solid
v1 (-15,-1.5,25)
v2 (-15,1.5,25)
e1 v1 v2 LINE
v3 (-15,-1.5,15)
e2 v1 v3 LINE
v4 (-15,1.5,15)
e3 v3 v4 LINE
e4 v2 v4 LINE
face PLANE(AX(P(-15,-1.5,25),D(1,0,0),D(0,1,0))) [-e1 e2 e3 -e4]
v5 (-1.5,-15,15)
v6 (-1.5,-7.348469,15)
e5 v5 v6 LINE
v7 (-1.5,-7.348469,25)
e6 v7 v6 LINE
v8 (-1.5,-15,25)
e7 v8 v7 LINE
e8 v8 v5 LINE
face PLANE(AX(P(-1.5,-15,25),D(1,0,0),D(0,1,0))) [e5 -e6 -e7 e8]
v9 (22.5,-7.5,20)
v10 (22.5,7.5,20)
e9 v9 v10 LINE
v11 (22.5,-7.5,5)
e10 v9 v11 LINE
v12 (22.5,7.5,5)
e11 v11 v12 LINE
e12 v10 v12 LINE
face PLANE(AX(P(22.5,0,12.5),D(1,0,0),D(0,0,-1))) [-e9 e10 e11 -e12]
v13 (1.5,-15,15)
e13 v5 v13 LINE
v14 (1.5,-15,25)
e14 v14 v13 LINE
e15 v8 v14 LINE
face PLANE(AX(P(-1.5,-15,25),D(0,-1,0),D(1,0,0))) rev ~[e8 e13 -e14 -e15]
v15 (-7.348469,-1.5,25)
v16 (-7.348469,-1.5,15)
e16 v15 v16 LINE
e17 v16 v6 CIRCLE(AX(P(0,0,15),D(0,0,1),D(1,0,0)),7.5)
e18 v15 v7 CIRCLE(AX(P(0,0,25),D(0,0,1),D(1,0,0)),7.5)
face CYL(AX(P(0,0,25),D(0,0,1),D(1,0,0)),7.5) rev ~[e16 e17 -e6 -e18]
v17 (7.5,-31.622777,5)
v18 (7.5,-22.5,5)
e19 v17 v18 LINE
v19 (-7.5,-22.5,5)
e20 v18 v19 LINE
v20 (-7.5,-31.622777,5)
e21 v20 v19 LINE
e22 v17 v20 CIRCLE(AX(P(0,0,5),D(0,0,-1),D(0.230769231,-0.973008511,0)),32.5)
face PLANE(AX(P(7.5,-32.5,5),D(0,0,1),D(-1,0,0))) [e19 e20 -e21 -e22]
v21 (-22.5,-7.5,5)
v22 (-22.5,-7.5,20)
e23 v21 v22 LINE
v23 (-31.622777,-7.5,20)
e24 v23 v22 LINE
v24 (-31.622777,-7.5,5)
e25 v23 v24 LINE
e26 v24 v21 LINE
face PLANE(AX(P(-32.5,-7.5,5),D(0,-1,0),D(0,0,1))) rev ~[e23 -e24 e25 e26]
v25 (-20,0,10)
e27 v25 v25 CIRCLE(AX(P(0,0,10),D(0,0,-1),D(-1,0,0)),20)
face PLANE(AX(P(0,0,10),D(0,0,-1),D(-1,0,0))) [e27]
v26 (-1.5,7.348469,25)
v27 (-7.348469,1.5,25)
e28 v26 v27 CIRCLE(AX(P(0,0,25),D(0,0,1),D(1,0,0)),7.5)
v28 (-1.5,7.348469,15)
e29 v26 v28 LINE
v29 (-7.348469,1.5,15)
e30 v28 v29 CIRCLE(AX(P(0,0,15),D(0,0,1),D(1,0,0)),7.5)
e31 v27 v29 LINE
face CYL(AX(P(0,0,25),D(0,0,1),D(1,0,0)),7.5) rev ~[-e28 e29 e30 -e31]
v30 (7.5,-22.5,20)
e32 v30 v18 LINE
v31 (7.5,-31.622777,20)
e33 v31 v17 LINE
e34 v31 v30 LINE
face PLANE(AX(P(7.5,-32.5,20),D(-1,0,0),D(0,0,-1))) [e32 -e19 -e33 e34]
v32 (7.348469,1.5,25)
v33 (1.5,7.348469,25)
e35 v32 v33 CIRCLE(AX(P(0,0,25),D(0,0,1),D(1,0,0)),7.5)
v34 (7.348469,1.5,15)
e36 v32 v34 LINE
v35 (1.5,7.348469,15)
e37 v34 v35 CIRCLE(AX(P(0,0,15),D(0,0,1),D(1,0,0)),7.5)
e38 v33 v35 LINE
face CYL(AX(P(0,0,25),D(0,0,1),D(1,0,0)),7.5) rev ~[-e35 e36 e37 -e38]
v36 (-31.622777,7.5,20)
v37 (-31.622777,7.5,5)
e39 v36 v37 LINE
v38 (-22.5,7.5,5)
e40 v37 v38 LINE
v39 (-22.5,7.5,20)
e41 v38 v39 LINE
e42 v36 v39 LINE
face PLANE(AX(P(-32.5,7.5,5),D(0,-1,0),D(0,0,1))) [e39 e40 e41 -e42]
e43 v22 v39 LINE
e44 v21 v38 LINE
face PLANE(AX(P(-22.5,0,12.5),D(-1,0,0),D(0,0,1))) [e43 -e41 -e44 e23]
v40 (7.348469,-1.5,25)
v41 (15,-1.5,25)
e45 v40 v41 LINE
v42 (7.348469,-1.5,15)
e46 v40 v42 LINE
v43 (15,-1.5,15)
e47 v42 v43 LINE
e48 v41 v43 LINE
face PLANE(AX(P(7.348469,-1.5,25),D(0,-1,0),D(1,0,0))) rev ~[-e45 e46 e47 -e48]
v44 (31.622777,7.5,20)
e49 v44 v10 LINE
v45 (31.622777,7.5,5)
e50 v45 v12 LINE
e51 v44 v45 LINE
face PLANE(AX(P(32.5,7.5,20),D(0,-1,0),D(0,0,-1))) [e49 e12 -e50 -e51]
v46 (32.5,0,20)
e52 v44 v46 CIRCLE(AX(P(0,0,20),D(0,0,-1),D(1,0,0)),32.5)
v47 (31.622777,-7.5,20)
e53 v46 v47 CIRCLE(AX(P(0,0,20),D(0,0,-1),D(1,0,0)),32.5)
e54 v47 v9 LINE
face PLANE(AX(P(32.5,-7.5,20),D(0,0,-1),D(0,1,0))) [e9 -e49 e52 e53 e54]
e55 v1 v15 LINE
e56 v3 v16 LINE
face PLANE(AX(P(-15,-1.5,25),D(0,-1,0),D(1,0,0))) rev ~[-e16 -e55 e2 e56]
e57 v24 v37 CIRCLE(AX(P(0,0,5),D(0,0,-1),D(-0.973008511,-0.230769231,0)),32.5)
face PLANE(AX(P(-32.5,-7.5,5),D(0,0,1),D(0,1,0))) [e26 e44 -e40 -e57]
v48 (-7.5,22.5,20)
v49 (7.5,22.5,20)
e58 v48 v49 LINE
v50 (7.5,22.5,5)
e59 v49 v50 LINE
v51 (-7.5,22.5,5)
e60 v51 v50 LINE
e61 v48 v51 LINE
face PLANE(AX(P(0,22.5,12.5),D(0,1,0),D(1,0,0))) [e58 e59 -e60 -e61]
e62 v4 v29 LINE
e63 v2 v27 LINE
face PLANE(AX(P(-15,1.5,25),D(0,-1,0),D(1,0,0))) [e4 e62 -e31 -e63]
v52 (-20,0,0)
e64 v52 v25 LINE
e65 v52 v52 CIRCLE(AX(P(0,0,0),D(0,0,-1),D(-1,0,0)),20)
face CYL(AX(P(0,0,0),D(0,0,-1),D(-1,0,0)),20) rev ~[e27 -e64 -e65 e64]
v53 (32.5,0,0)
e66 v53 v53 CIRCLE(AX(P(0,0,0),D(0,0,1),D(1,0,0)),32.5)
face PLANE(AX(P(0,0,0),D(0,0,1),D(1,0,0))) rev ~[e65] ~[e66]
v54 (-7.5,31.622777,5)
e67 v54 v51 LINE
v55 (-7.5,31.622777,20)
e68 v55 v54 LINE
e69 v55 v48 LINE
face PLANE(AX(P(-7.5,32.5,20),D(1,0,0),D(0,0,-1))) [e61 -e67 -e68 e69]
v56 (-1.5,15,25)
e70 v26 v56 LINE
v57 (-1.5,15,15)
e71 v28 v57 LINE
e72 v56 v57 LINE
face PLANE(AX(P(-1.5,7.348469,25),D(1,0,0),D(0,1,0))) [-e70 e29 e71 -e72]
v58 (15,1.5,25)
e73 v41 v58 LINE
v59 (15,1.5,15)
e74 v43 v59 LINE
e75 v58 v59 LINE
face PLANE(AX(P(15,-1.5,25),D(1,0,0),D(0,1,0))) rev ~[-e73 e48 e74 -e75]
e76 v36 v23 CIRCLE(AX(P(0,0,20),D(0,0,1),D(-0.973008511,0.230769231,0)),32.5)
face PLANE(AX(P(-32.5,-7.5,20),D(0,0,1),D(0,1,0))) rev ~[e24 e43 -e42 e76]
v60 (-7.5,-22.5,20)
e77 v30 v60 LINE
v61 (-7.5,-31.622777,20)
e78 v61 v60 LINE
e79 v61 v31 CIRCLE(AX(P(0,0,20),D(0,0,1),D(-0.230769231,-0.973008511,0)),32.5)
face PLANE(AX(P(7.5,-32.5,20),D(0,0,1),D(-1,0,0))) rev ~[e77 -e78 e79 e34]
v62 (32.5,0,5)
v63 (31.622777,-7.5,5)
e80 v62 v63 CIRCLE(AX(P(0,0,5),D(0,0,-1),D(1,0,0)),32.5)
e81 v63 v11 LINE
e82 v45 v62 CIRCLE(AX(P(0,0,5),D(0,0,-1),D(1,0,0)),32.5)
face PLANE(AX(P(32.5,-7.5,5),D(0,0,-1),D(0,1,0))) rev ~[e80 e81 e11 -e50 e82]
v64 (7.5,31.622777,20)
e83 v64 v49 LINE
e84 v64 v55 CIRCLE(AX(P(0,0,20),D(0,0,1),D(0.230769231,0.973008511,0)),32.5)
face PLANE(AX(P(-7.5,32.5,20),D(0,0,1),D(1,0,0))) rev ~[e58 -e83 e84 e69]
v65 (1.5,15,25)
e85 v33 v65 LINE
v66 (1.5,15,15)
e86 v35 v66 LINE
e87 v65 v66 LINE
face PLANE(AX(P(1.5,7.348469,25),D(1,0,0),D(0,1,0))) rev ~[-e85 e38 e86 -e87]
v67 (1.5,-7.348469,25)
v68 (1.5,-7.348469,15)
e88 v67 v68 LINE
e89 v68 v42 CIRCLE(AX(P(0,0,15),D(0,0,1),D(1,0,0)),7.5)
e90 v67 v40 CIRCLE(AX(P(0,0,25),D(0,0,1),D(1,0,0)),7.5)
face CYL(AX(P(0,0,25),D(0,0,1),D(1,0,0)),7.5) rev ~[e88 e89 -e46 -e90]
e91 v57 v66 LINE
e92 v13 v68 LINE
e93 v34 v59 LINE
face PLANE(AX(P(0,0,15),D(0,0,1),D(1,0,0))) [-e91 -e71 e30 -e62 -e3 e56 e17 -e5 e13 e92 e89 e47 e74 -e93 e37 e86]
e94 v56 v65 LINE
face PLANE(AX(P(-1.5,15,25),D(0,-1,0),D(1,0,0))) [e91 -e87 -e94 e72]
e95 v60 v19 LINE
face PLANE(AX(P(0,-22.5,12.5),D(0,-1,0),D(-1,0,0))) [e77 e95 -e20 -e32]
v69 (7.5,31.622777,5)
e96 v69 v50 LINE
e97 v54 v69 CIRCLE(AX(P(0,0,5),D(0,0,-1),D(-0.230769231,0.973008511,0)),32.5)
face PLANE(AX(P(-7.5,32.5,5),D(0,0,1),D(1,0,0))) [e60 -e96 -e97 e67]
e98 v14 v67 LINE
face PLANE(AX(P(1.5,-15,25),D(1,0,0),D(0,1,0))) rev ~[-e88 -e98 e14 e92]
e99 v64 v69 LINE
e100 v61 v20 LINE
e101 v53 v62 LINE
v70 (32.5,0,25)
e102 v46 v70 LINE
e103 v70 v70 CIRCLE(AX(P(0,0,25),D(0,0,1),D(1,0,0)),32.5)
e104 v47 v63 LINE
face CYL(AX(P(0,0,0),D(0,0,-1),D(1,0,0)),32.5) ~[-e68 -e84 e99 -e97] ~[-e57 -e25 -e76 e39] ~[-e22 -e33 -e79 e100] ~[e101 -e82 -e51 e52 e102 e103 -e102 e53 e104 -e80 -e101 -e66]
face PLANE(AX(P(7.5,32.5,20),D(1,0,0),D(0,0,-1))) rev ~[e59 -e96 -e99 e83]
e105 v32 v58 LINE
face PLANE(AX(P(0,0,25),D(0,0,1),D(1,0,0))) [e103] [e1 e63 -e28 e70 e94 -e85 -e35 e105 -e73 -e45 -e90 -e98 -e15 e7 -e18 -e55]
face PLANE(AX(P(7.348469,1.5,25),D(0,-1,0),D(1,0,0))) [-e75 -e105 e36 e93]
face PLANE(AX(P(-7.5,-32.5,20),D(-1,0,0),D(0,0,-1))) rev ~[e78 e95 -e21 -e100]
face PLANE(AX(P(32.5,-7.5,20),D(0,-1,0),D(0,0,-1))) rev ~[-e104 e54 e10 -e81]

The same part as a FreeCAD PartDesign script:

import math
import FreeCAD as App
import Part
import Sketcher
Q = App.Units.Quantity

doc = App.newDocument("Part")
body = doc.addObject("PartDesign::Body", "Body")

sketch1 = body.newObject("Sketcher::SketchObject", "Sketch")
sketch1.AttachmentSupport = (doc.getObject("XY_Plane"), [""])
sketch1.MapMode = "FlatFace"
sketch1.addGeometry(Part.Circle(App.Vector(0, 0, 0), App.Vector(0, 0, 1), 32.5), False)
sketch1.addConstraint(Sketcher.Constraint("Coincident", 0, 3, -1, 1))
sketch1.addConstraint(Sketcher.Constraint("Diameter", 0, Q("65 mm")))
pad1 = body.newObject("PartDesign::Pad", "Pad")
pad1.Profile = sketch1
pad1.Length = 25

sketch2 = body.newObject("Sketcher::SketchObject", "Sketch001")
sketch2.AttachmentSupport = (doc.getObject("XY_Plane"), [""])
sketch2.MapMode = "FlatFace"
sketch2.addGeometry(Part.Circle(App.Vector(0, 0, 0), App.Vector(0, 0, 1), 20), False)
sketch2.addConstraint(Sketcher.Constraint("Coincident", 0, 3, -1, 1))
sketch2.addConstraint(Sketcher.Constraint("Diameter", 0, Q("40 mm")))
pocket1 = body.newObject("PartDesign::Pocket", "Pocket")
pocket1.Profile = sketch2
pocket1.Length = 10
pocket1.Reversed = True

sketch3 = body.newObject("Sketcher::SketchObject", "Sketch002")
sketch3.AttachmentSupport = (doc.getObject("XY_Plane"), [""])
sketch3.MapMode = "FlatFace"
sketch3.AttachmentOffset = App.Placement(App.Vector(0, 0, 25), App.Rotation())
sketch3.addGeometry(Part.ArcOfCircle(Part.Circle(App.Vector(0, 0, 0), App.Vector(0, 0, 1), 7.5), math.radians(-78.463041), math.radians(-11.536959)), False)
sketch3.addGeometry(Part.LineSegment(App.Vector(7.348469, -1.5, 0), App.Vector(15, -1.5, 0)), False)
sketch3.addGeometry(Part.LineSegment(App.Vector(15, -1.5, 0), App.Vector(15, 1.5, 0)), False)
sketch3.addGeometry(Part.LineSegment(App.Vector(15, 1.5, 0), App.Vector(7.348469, 1.5, 0)), False)
sketch3.addGeometry(Part.ArcOfCircle(Part.Circle(App.Vector(0, 0, 0), App.Vector(0, 0, 1), 7.5), math.radians(11.536959), math.radians(78.463041)), False)
sketch3.addGeometry(Part.LineSegment(App.Vector(1.5, 7.348469, 0), App.Vector(1.5, 15, 0)), False)
sketch3.addGeometry(Part.LineSegment(App.Vector(1.5, 15, 0), App.Vector(-1.5, 15, 0)), False)
sketch3.addGeometry(Part.LineSegment(App.Vector(-1.5, 15, 0), App.Vector(-1.5, 7.348469, 0)), False)
sketch3.addGeometry(Part.ArcOfCircle(Part.Circle(App.Vector(0, 0, 0), App.Vector(0, 0, 1), 7.5), math.radians(101.536959), math.radians(168.463041)), False)
sketch3.addGeometry(Part.LineSegment(App.Vector(-7.348469, 1.5, 0), App.Vector(-15, 1.5, 0)), False)
sketch3.addGeometry(Part.LineSegment(App.Vector(-15, 1.5, 0), App.Vector(-15, -1.5, 0)), False)
sketch3.addGeometry(Part.LineSegment(App.Vector(-15, -1.5, 0), App.Vector(-7.348469, -1.5, 0)), False)
sketch3.addGeometry(Part.ArcOfCircle(Part.Circle(App.Vector(0, 0, 0), App.Vector(0, 0, 1), 7.5), math.radians(-168.463041), math.radians(-101.536959)), False)
sketch3.addGeometry(Part.LineSegment(App.Vector(-1.5, -7.348469, 0), App.Vector(-1.5, -15, 0)), False)
sketch3.addGeometry(Part.LineSegment(App.Vector(-1.5, -15, 0), App.Vector(1.5, -15, 0)), False)
sketch3.addGeometry(Part.LineSegment(App.Vector(1.5, -15, 0), App.Vector(1.5, -7.348469, 0)), False)
sketch3.addConstraint(Sketcher.Constraint("Coincident", 0, 2, 1, 1))
sketch3.addConstraint(Sketcher.Constraint("Coincident", 1, 2, 2, 1))
sketch3.addConstraint(Sketcher.Constraint("Coincident", 2, 2, 3, 1))
sketch3.addConstraint(Sketcher.Constraint("Coincident", 3, 2, 4, 1))
sketch3.addConstraint(Sketcher.Constraint("Coincident", 4, 2, 5, 1))
sketch3.addConstraint(Sketcher.Constraint("Coincident", 5, 2, 6, 1))
sketch3.addConstraint(Sketcher.Constraint("Coincident", 6, 2, 7, 1))
sketch3.addConstraint(Sketcher.Constraint("Coincident", 7, 2, 8, 1))
sketch3.addConstraint(Sketcher.Constraint("Coincident", 8, 2, 9, 1))
sketch3.addConstraint(Sketcher.Constraint("Coincident", 9, 2, 10, 1))
sketch3.addConstraint(Sketcher.Constraint("Coincident", 10, 2, 11, 1))
sketch3.addConstraint(Sketcher.Constraint("Coincident", 11, 2, 12, 1))
sketch3.addConstraint(Sketcher.Constraint("Coincident", 12, 2, 13, 1))
sketch3.addConstraint(Sketcher.Constraint("Coincident", 13, 2, 14, 1))
sketch3.addConstraint(Sketcher.Constraint("Coincident", 14, 2, 15, 1))
sketch3.addConstraint(Sketcher.Constraint("Coincident", 15, 2, 0, 1))
sketch3.addConstraint(Sketcher.Constraint("Horizontal", 1))
sketch3.addConstraint(Sketcher.Constraint("Vertical", 2))
sketch3.addConstraint(Sketcher.Constraint("Horizontal", 3))
sketch3.addConstraint(Sketcher.Constraint("Vertical", 5))
sketch3.addConstraint(Sketcher.Constraint("Horizontal", 6))
sketch3.addConstraint(Sketcher.Constraint("Vertical", 7))
sketch3.addConstraint(Sketcher.Constraint("Horizontal", 9))
sketch3.addConstraint(Sketcher.Constraint("Vertical", 10))
sketch3.addConstraint(Sketcher.Constraint("Horizontal", 11))
sketch3.addConstraint(Sketcher.Constraint("Vertical", 13))
sketch3.addConstraint(Sketcher.Constraint("Horizontal", 14))
sketch3.addConstraint(Sketcher.Constraint("Vertical", 15))
sketch3.addConstraint(Sketcher.Constraint("Coincident", 0, 3, -1, 1))
sketch3.addConstraint(Sketcher.Constraint("Coincident", 4, 3, -1, 1))
sketch3.addConstraint(Sketcher.Constraint("Coincident", 8, 3, -1, 1))
sketch3.addConstraint(Sketcher.Constraint("Coincident", 12, 3, -1, 1))
sketch3.addConstraint(Sketcher.Constraint("Equal", 0, 4))
sketch3.addConstraint(Sketcher.Constraint("Equal", 4, 8))
sketch3.addConstraint(Sketcher.Constraint("Equal", 8, 12))
sketch3.addConstraint(Sketcher.Constraint("Symmetric", 1, 2, 9, 2, -1, 1))
sketch3.addConstraint(Sketcher.Constraint("Symmetric", 5, 2, 13, 2, -1, 1))
sketch3.addConstraint(Sketcher.Constraint("Horizontal", 4, 2, 7, 2))
sketch3.addConstraint(Sketcher.Constraint("Horizontal", 3, 2, 8, 2))
sketch3.addConstraint(Sketcher.Constraint("Horizontal", 1, 2, 10, 2))
sketch3.addConstraint(Sketcher.Constraint("Horizontal", 12, 2, 15, 2))
sketch3.addConstraint(Sketcher.Constraint("Equal", 14, 2))
sketch3.addConstraint(Sketcher.Constraint("Equal", 11, 5))
sketch3.addConstraint(Sketcher.Constraint("Radius", 0, Q("7.5 mm")))
sketch3.addConstraint(Sketcher.Constraint("DistanceX", 6, 2, 6, 1, Q("3 mm")))
sketch3.addConstraint(Sketcher.Constraint("DistanceX", -1, 1, 1, 2, Q("15 mm")))
pocket2 = body.newObject("PartDesign::Pocket", "Pocket001")
pocket2.Profile = sketch3
pocket2.Length = 10

sketch4 = body.newObject("Sketcher::SketchObject", "Sketch003")
sketch4.AttachmentSupport = (doc.getObject("YZ_Plane"), [""])
sketch4.MapMode = "FlatFace"
sketch4.AttachmentOffset = App.Placement(App.Vector(0, 0, 32.5), App.Rotation())
sketch4.addGeometry(Part.LineSegment(App.Vector(7.5, 20, 0), App.Vector(-7.5, 20, 0)), False)
sketch4.addGeometry(Part.LineSegment(App.Vector(-7.5, 20, 0), App.Vector(-7.5, 5, 0)), False)
sketch4.addGeometry(Part.LineSegment(App.Vector(-7.5, 5, 0), App.Vector(7.5, 5, 0)), False)
sketch4.addGeometry(Part.LineSegment(App.Vector(7.5, 5, 0), App.Vector(7.5, 20, 0)), False)
sketch4.addConstraint(Sketcher.Constraint("Coincident", 0, 2, 1, 1))
sketch4.addConstraint(Sketcher.Constraint("Coincident", 1, 2, 2, 1))
sketch4.addConstraint(Sketcher.Constraint("Coincident", 2, 2, 3, 1))
sketch4.addConstraint(Sketcher.Constraint("Coincident", 3, 2, 0, 1))
sketch4.addConstraint(Sketcher.Constraint("Horizontal", 0))
sketch4.addConstraint(Sketcher.Constraint("Vertical", 1))
sketch4.addConstraint(Sketcher.Constraint("Horizontal", 2))
sketch4.addConstraint(Sketcher.Constraint("Vertical", 3))
sketch4.addConstraint(Sketcher.Constraint("Equal", 2, 1))
sketch4.addConstraint(Sketcher.Constraint("DistanceX", 0, 2, 0, 1, Q("15 mm")))
sketch4.addConstraint(Sketcher.Constraint("DistanceY", -1, 1, 0, 2, Q("20 mm")))
sketch4.addConstraint(Sketcher.Constraint("DistanceX", 0, 2, -1, 1, Q("7.5 mm")))
pocket3 = body.newObject("PartDesign::Pocket", "Pocket002")
pocket3.Profile = sketch4
pocket3.Length = 10

sketch5 = body.newObject("Sketcher::SketchObject", "Sketch004")
sketch5.AttachmentSupport = (doc.getObject("YZ_Plane"), [""])
sketch5.MapMode = "FlatFace"
sketch5.AttachmentOffset = App.Placement(App.Vector(0, 0, -32.5), App.Rotation())
sketch5.addGeometry(Part.LineSegment(App.Vector(7.5, 5, 0), App.Vector(-7.5, 5, 0)), False)
sketch5.addGeometry(Part.LineSegment(App.Vector(-7.5, 5, 0), App.Vector(-7.5, 20, 0)), False)
sketch5.addGeometry(Part.LineSegment(App.Vector(-7.5, 20, 0), App.Vector(7.5, 20, 0)), False)
sketch5.addGeometry(Part.LineSegment(App.Vector(7.5, 20, 0), App.Vector(7.5, 5, 0)), False)
sketch5.addConstraint(Sketcher.Constraint("Coincident", 0, 2, 1, 1))
sketch5.addConstraint(Sketcher.Constraint("Coincident", 1, 2, 2, 1))
sketch5.addConstraint(Sketcher.Constraint("Coincident", 2, 2, 3, 1))
sketch5.addConstraint(Sketcher.Constraint("Coincident", 3, 2, 0, 1))
sketch5.addConstraint(Sketcher.Constraint("Horizontal", 0))
sketch5.addConstraint(Sketcher.Constraint("Vertical", 1))
sketch5.addConstraint(Sketcher.Constraint("Horizontal", 2))
sketch5.addConstraint(Sketcher.Constraint("Vertical", 3))
sketch5.addConstraint(Sketcher.Constraint("Equal", 2, 1))
sketch5.addConstraint(Sketcher.Constraint("DistanceX", 0, 2, 0, 1, Q("15 mm")))
sketch5.addConstraint(Sketcher.Constraint("DistanceY", -1, 1, 0, 2, Q("5 mm")))
sketch5.addConstraint(Sketcher.Constraint("DistanceX", 0, 2, -1, 1, Q("7.5 mm")))
pocket4 = body.newObject("PartDesign::Pocket", "Pocket003")
pocket4.Profile = sketch5
pocket4.Length = 10
pocket4.Reversed = True

sketch6 = body.newObject("Sketcher::SketchObject", "Sketch005")
sketch6.AttachmentSupport = (doc.getObject("XZ_Plane"), [""])
sketch6.MapMode = "FlatFace"
sketch6.AttachmentOffset = App.Placement(App.Vector(0, 0, -32.5), App.Rotation())
sketch6.addGeometry(Part.LineSegment(App.Vector(-7.5, 5, 0), App.Vector(-7.5, 20, 0)), False)
sketch6.addGeometry(Part.LineSegment(App.Vector(-7.5, 20, 0), App.Vector(7.5, 20, 0)), False)
sketch6.addGeometry(Part.LineSegment(App.Vector(7.5, 20, 0), App.Vector(7.5, 5, 0)), False)
sketch6.addGeometry(Part.LineSegment(App.Vector(7.5, 5, 0), App.Vector(-7.5, 5, 0)), False)
sketch6.addConstraint(Sketcher.Constraint("Coincident", 0, 2, 1, 1))
sketch6.addConstraint(Sketcher.Constraint("Coincident", 1, 2, 2, 1))
sketch6.addConstraint(Sketcher.Constraint("Coincident", 2, 2, 3, 1))
sketch6.addConstraint(Sketcher.Constraint("Coincident", 3, 2, 0, 1))
sketch6.addConstraint(Sketcher.Constraint("Vertical", 0))
sketch6.addConstraint(Sketcher.Constraint("Horizontal", 1))
sketch6.addConstraint(Sketcher.Constraint("Vertical", 2))
sketch6.addConstraint(Sketcher.Constraint("Horizontal", 3))
sketch6.addConstraint(Sketcher.Constraint("Equal", 3, 0))
sketch6.addConstraint(Sketcher.Constraint("DistanceX", 1, 1, 1, 2, Q("15 mm")))
sketch6.addConstraint(Sketcher.Constraint("DistanceY", -1, 1, 0, 2, Q("20 mm")))
sketch6.addConstraint(Sketcher.Constraint("DistanceX", 0, 2, -1, 1, Q("7.5 mm")))
pocket5 = body.newObject("PartDesign::Pocket", "Pocket004")
pocket5.Profile = sketch6
pocket5.Length = 10
pocket5.Reversed = True

sketch7 = body.newObject("Sketcher::SketchObject", "Sketch006")
sketch7.AttachmentSupport = (doc.getObject("XZ_Plane"), [""])
sketch7.MapMode = "FlatFace"
sketch7.AttachmentOffset = App.Placement(App.Vector(0, 0, 32.5), App.Rotation())
sketch7.addGeometry(Part.LineSegment(App.Vector(7.5, 5, 0), App.Vector(7.5, 20, 0)), False)
sketch7.addGeometry(Part.LineSegment(App.Vector(7.5, 20, 0), App.Vector(-7.5, 20, 0)), False)
sketch7.addGeometry(Part.LineSegment(App.Vector(-7.5, 20, 0), App.Vector(-7.5, 5, 0)), False)
sketch7.addGeometry(Part.LineSegment(App.Vector(-7.5, 5, 0), App.Vector(7.5, 5, 0)), False)
sketch7.addConstraint(Sketcher.Constraint("Coincident", 0, 2, 1, 1))
sketch7.addConstraint(Sketcher.Constraint("Coincident", 1, 2, 2, 1))
sketch7.addConstraint(Sketcher.Constraint("Coincident", 2, 2, 3, 1))
sketch7.addConstraint(Sketcher.Constraint("Coincident", 3, 2, 0, 1))
sketch7.addConstraint(Sketcher.Constraint("Vertical", 0))
sketch7.addConstraint(Sketcher.Constraint("Horizontal", 1))
sketch7.addConstraint(Sketcher.Constraint("Vertical", 2))
sketch7.addConstraint(Sketcher.Constraint("Horizontal", 3))
sketch7.addConstraint(Sketcher.Constraint("Equal", 3, 0))
sketch7.addConstraint(Sketcher.Constraint("DistanceX", 1, 2, 1, 1, Q("15 mm")))
sketch7.addConstraint(Sketcher.Constraint("DistanceY", -1, 1, 0, 2, Q("20 mm")))
sketch7.addConstraint(Sketcher.Constraint("DistanceX", -1, 1, 0, 2, Q("7.5 mm")))
pocket6 = body.newObject("PartDesign::Pocket", "Pocket005")
pocket6.Profile = sketch7
pocket6.Length = 10

doc.recompute()
